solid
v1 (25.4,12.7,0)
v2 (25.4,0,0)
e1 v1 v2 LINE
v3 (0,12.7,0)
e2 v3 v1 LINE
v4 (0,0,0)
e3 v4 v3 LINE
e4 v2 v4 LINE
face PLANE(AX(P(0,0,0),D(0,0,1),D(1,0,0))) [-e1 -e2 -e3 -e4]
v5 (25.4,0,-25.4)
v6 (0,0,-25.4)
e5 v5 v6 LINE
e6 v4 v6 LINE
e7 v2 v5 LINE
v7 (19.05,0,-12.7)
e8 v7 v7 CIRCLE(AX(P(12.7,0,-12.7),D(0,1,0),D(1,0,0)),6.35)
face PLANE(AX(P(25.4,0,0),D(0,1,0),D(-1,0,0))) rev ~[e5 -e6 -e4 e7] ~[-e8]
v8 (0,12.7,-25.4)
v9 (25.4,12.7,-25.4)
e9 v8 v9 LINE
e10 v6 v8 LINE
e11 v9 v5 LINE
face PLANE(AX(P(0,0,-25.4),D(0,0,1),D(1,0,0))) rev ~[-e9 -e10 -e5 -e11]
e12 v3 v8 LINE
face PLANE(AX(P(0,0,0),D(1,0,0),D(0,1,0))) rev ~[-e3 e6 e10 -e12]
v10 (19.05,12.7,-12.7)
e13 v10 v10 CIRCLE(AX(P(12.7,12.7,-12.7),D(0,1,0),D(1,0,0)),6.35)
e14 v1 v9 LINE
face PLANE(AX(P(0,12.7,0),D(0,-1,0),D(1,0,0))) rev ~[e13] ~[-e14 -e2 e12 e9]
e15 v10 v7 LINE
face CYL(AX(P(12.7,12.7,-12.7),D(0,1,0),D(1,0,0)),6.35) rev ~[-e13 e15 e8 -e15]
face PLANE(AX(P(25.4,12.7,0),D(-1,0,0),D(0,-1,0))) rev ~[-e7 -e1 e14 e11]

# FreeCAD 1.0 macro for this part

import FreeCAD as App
import Part
import Sketcher

V = App.Vector
Q = App.Units.Quantity

doc = App.newDocument("Part")
body = doc.addObject("PartDesign::Body", "Body")

sketch1 = body.newObject("Sketcher::SketchObject", "Sketch")
sketch1.AttachmentSupport = (doc.getObject("XY_Plane"), [""])
sketch1.MapMode = "FlatFace"
sketch1.addGeometry(Part.LineSegment(V(0, 12.7, 0), V(0, 0, 0)), False)
sketch1.addGeometry(Part.LineSegment(V(0, 0, 0), V(25.4, 0, 0)), False)
sketch1.addGeometry(Part.LineSegment(V(25.4, 0, 0), V(25.4, 12.7, 0)), False)
sketch1.addGeometry(Part.LineSegment(V(25.4, 12.7, 0), V(0, 12.7, 0)), False)
sketch1.addConstraint(Sketcher.Constraint("Coincident", 0, 2, 1, 1))
sketch1.addConstraint(Sketcher.Constraint("Coincident", 1, 2, 2, 1))
sketch1.addConstraint(Sketcher.Constraint("Coincident", 2, 2, 3, 1))
sketch1.addConstraint(Sketcher.Constraint("Coincident", 3, 2, 0, 1))
sketch1.addConstraint(Sketcher.Constraint("Vertical", 0))
sketch1.addConstraint(Sketcher.Constraint("Horizontal", 1))
sketch1.addConstraint(Sketcher.Constraint("Vertical", 2))
sketch1.addConstraint(Sketcher.Constraint("Horizontal", 3))
sketch1.addConstraint(Sketcher.Constraint("Coincident", 0, 2, -1, 1))
sketch1.addConstraint(Sketcher.Constraint("DistanceX", 1, 1, 1, 2, Q("1 in")))
sketch1.addConstraint(Sketcher.Constraint("DistanceY", 0, 2, 0, 1, Q("0.5 in")))
pad1 = body.newObject("PartDesign::Pad", "Pad")
pad1.Profile = sketch1
pad1.Length = Q("1 in")
pad1.Reversed = True

sketch2 = body.newObject("Sketcher::SketchObject", "Sketch001")
sketch2.AttachmentSupport = (doc.getObject("XZ_Plane"), [""])
sketch2.MapMode = "FlatFace"
sketch2.AttachmentOffset = App.Placement(V(0, 0, -0.5 * 25.4), App.Rotation())
sketch2.addGeometry(Part.Circle(V(12.7, -12.7, 0), V(0, 0, 1), 6.35), False)
sketch2.addConstraint(Sketcher.Constraint("Diameter", 0, Q("0.5 in")))
sketch2.addConstraint(Sketcher.Constraint("DistanceX", -1, 1, 0, 3, Q("0.5 in")))
sketch2.addConstraint(Sketcher.Constraint("DistanceY", 0, 3, -1, 1, Q("0.5 in")))
pocket1 = body.newObject("PartDesign::Pocket", "Pocket")
pocket1.Profile = sketch2
pocket1.Length = Q("0.625 in")
pocket1.Reversed = True

doc.recompute()
